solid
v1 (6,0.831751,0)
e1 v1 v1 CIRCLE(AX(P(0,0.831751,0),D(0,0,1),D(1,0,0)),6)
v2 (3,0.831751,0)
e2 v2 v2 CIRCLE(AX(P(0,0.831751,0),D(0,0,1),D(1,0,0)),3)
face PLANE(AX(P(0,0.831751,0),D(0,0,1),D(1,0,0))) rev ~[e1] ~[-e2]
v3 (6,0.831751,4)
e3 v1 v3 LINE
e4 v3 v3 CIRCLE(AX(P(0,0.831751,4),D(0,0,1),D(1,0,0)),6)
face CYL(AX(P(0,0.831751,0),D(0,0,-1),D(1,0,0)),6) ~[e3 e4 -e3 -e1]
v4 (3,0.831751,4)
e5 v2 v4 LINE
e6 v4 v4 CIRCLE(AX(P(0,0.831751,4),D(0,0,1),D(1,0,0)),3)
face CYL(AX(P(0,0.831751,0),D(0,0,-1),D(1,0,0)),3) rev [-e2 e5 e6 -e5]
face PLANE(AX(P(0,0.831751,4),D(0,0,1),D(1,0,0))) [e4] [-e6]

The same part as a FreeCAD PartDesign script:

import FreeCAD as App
import Part
import Sketcher

doc = App.newDocument("Part")
params = doc.addObject("Spreadsheet::Sheet", "Params")
for row, (alias, value) in enumerate([
    ("sketch1_diameter", "12 mm"),
    ("sketch1_diameter2", "6 mm"),
    ("pad1_length", "4 mm"),
], start=1):
    params.set(f"A{row}", alias)
    params.set(f"B{row}", "=" + value)
    params.setAlias(f"B{row}", alias)

body = doc.addObject("PartDesign::Body", "Body")

sketch1 = body.newObject("Sketcher::SketchObject", "Sketch")
sketch1.AttachmentSupport = (doc.getObject("XY_Plane"), [""])
sketch1.MapMode = "FlatFace"
sketch1.addGeometry([
    Part.Circle(App.Vector(0, 0.831751, 0), App.Vector(0, 0, 1), 6),
    Part.Circle(App.Vector(0, 0.831751, 0), App.Vector(0, 0, 1), 3),
], False)
sketch1.addConstraint([
    Sketcher.Constraint("Coincident", 1, 3, 0, 3),
    Sketcher.Constraint("PointOnObject", 0, 3, -2),
    Sketcher.Constraint("Diameter", 0, 12.0),
    Sketcher.Constraint("Diameter", 1, 6.0),
    Sketcher.Constraint("DistanceY", -1, 1, 0, 3, 0.831751),
])
sketch1.setExpression("Constraints[2]", "Params.sketch1_diameter")
sketch1.setExpression("Constraints[3]", "Params.sketch1_diameter2")
pad1 = body.newObject("PartDesign::Pad", "Pad")
pad1.Profile = sketch1
pad1.setExpression("Length", "Params.pad1_length")

doc.recompute()
